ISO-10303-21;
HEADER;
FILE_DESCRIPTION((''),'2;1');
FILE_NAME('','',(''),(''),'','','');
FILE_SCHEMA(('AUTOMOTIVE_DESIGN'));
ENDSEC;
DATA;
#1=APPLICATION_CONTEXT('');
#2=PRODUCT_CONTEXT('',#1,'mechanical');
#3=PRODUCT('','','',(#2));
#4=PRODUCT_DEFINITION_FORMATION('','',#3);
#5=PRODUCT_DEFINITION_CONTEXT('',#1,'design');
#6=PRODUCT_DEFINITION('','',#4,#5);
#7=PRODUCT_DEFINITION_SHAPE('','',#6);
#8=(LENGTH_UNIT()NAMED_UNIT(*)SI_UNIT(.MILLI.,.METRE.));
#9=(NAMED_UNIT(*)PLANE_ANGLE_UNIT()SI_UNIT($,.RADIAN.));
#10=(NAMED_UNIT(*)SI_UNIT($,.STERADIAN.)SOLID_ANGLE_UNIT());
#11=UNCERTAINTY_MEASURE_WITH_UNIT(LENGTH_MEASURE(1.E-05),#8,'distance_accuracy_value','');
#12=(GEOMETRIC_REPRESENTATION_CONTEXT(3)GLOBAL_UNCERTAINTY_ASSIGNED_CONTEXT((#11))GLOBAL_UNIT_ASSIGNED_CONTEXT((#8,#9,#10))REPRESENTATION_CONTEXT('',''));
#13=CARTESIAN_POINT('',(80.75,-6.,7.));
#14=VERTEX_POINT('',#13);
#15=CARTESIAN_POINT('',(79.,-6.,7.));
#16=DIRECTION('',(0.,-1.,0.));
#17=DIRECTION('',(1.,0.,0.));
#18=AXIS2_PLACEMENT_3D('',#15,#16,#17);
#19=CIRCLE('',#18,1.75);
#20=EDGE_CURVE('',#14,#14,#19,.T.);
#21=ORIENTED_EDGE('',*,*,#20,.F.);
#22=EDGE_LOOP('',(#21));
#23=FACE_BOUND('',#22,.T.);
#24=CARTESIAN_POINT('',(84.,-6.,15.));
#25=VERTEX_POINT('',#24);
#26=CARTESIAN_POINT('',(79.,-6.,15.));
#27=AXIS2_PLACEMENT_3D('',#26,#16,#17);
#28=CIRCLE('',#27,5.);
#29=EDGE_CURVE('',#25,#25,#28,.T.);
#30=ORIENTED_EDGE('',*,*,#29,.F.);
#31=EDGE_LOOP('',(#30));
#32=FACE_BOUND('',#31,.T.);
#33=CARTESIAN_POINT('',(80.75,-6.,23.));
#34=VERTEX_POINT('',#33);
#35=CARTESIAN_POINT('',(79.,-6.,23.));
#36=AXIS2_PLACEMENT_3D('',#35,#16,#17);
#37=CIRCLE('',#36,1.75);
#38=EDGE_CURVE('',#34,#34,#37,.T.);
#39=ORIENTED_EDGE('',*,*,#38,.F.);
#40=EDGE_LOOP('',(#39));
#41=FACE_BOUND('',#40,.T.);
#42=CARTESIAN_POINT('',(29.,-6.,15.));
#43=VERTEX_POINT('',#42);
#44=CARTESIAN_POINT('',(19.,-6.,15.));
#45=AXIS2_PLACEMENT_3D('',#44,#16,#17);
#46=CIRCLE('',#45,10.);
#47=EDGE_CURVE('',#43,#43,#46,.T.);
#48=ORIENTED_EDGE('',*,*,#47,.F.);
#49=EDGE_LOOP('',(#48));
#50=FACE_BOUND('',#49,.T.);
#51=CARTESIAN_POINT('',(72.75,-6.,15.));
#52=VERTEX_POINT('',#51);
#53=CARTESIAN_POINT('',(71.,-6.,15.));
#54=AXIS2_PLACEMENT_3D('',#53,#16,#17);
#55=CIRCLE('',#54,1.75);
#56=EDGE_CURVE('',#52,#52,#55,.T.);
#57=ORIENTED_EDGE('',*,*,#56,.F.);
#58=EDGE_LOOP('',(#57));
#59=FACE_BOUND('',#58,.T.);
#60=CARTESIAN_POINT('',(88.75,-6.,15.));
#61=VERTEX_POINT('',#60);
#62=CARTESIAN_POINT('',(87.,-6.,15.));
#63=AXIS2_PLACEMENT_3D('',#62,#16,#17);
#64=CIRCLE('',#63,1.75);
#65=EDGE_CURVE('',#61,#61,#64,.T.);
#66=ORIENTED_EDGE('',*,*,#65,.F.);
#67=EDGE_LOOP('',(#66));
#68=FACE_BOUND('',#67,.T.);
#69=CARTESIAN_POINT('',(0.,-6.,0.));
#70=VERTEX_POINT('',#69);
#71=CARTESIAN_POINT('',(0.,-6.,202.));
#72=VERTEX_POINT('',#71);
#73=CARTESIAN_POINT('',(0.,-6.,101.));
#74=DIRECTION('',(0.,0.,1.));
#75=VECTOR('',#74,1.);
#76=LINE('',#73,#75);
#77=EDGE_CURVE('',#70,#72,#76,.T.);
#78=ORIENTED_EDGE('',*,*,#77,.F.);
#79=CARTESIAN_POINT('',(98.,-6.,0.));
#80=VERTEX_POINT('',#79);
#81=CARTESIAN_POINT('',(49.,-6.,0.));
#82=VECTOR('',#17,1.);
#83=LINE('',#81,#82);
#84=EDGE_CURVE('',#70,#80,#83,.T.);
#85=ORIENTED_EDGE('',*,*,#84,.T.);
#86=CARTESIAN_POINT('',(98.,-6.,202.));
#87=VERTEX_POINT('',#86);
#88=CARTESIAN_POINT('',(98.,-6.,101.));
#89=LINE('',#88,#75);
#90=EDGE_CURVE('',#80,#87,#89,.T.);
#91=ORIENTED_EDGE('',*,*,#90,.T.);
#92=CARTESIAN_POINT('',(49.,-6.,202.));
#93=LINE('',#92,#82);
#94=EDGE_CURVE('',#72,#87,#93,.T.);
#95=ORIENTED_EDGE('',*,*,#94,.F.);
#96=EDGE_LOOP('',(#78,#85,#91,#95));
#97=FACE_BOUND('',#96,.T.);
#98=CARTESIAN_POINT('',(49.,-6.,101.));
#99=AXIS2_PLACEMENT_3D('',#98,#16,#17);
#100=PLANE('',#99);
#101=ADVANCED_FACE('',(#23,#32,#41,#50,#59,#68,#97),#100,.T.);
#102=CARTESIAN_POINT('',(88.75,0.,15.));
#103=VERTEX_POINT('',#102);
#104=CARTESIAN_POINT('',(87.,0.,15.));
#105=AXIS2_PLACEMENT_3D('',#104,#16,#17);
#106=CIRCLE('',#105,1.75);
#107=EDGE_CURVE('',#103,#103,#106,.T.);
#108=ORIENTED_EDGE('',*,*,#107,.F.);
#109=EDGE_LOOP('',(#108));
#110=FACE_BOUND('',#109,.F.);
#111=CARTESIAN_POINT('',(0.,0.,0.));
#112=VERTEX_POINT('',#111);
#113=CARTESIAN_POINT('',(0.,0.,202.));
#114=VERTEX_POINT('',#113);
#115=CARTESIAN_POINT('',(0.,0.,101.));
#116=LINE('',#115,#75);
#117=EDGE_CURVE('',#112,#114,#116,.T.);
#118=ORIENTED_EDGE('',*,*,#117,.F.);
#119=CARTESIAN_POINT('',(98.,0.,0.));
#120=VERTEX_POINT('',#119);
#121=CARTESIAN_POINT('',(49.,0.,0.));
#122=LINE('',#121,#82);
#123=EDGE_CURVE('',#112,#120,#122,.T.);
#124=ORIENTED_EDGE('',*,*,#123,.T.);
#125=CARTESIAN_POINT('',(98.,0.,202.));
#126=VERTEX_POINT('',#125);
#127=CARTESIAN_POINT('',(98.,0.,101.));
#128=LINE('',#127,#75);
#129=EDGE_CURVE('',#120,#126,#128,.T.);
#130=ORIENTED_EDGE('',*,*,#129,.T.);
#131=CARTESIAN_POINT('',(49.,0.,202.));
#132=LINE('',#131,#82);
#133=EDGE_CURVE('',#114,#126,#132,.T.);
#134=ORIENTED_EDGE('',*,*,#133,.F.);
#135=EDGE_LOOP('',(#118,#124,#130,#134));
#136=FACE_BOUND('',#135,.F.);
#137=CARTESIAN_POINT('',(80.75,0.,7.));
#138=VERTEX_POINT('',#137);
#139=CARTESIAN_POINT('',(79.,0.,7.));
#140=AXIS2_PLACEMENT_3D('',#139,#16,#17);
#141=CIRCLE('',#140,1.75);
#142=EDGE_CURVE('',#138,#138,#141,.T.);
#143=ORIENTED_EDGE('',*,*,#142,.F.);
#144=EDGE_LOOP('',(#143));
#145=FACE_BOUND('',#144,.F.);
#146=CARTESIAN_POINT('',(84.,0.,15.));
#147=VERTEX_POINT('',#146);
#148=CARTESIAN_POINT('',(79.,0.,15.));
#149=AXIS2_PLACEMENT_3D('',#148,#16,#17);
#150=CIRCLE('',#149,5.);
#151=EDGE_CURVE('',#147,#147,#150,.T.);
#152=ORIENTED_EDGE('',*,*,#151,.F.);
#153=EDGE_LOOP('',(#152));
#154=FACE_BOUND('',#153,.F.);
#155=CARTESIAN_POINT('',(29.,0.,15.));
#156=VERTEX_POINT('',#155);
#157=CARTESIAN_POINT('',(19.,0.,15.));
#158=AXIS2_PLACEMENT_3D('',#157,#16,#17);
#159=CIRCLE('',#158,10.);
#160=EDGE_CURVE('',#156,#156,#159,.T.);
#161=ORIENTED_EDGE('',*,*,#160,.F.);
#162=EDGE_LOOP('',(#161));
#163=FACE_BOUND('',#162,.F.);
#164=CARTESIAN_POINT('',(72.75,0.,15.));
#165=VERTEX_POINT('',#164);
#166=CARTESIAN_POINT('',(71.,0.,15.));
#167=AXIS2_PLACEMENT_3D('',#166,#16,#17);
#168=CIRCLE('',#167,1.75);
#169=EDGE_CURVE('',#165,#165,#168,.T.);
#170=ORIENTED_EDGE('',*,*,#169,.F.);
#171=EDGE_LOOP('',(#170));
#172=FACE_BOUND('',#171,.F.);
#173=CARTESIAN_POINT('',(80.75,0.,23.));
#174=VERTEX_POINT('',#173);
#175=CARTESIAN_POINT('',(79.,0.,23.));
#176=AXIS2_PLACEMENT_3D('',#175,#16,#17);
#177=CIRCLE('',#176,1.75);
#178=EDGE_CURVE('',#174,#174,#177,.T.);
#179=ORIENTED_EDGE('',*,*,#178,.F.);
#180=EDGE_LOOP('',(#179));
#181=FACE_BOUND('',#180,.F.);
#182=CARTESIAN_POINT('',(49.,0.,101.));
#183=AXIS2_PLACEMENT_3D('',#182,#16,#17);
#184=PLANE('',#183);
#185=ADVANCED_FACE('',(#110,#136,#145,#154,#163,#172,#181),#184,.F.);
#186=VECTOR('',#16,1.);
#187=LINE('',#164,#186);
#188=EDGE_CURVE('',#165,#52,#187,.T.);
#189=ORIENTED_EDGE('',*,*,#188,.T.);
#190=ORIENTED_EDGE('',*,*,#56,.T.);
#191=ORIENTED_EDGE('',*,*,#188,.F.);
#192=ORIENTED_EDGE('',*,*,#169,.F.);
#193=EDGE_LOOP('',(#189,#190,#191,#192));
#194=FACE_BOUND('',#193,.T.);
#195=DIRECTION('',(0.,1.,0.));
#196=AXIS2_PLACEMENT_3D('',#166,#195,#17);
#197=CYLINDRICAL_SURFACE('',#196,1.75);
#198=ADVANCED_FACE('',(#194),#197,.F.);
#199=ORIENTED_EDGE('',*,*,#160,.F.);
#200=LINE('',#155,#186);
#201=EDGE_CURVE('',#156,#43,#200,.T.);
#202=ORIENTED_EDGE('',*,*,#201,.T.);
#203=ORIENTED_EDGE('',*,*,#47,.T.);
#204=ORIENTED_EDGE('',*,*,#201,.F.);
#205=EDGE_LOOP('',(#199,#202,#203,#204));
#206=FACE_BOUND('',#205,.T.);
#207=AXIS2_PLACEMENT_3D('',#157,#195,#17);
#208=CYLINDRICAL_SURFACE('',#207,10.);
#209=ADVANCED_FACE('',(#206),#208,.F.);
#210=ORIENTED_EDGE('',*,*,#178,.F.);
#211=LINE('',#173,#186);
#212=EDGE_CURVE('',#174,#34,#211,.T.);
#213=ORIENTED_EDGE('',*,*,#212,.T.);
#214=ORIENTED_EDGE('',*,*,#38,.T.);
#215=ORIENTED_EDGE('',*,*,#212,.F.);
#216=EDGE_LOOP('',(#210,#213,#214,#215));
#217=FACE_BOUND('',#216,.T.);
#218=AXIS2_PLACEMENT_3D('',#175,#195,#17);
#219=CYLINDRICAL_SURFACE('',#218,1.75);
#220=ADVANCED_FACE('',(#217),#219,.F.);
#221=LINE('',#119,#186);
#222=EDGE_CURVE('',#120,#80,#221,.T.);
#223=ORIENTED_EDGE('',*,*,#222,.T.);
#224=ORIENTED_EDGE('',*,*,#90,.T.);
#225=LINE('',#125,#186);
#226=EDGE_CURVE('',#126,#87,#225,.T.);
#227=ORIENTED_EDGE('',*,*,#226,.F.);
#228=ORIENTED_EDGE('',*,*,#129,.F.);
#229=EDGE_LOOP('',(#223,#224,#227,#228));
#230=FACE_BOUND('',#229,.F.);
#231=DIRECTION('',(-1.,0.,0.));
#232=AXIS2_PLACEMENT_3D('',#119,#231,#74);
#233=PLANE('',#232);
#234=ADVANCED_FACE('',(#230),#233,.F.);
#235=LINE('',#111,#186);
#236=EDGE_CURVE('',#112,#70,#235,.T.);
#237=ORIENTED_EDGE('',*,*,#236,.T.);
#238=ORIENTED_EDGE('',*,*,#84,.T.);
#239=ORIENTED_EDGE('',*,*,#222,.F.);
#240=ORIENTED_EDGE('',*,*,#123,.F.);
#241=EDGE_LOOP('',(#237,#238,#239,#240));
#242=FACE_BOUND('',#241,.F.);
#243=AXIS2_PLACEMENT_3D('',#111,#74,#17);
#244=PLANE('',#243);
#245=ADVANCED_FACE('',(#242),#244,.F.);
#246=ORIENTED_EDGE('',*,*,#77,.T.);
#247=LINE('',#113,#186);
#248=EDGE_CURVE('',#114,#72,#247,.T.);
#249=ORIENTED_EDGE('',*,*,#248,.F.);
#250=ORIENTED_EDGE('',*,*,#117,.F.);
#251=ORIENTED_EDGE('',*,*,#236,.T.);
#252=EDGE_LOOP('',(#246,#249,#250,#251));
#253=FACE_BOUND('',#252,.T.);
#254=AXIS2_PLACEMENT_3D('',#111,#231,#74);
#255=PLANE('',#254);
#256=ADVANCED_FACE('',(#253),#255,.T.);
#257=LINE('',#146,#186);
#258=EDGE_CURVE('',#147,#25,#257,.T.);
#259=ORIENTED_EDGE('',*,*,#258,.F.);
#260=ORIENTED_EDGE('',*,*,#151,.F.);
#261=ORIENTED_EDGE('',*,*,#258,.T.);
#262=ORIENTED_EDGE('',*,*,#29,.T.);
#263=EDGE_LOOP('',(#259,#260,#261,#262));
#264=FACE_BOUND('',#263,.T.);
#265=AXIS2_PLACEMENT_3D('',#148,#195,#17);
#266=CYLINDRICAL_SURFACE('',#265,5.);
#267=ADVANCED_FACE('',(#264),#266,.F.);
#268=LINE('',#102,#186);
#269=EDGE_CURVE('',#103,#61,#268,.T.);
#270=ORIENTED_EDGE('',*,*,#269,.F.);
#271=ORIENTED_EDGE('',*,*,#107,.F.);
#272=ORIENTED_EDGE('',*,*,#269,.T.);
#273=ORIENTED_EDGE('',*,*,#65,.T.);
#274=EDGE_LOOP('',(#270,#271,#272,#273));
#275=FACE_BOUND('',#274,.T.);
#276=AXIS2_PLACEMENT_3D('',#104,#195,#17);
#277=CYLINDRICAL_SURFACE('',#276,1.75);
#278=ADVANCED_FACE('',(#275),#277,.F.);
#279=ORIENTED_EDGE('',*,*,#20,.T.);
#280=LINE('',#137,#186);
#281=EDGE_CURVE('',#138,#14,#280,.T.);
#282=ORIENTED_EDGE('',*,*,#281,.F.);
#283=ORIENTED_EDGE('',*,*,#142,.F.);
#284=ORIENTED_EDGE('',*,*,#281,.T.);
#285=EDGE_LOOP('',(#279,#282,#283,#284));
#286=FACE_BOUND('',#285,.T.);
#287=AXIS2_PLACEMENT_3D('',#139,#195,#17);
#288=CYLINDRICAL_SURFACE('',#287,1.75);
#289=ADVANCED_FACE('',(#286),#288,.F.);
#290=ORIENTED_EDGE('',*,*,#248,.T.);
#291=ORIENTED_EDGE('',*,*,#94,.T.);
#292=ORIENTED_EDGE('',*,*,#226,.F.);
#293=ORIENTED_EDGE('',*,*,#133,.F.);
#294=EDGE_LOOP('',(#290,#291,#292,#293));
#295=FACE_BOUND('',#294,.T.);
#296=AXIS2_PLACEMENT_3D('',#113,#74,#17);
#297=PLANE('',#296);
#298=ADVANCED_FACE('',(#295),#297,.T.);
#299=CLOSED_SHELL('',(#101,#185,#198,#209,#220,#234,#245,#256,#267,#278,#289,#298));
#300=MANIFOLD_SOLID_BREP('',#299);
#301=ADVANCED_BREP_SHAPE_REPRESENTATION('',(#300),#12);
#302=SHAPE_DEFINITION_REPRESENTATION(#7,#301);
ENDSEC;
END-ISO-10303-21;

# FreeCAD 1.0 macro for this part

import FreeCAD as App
import Part
import Sketcher


def add_polygon(sketch, points):
    """Adds a closed chain of lines whose ends are joined by coincident constraints."""
    first, n = sketch.GeometryCount, len(points)
    for a, b in zip(points, points[1:] + points[:1]):
        sketch.addGeometry(Part.LineSegment(App.Vector(*a, 0), App.Vector(*b, 0)), False)
    for i in range(n):
        sketch.addConstraint(Sketcher.Constraint("Coincident", first + i, 2, first + (i + 1) % n, 1))

doc = App.newDocument("Part")
params = doc.addObject("Spreadsheet::Sheet", "Params")
for row, (alias, value) in enumerate([
    ("sketch1_diameter", "20 mm"),
    ("sketch1_diameter2", "10 mm"),
    ("sketch1_diameter3", "3.5 mm"),
    ("sketch1_width", "98 mm"),
    ("sketch1_height", "202 mm"),
    ("pad1_length", "6 mm"),
], start=1):
    params.set(f"A{row}", alias)
    params.set(f"B{row}", "=" + value)
    params.setAlias(f"B{row}", alias)

body = doc.addObject("PartDesign::Body", "Body")

# Sketch on XZ plane
sketch1 = body.newObject("Sketcher::SketchObject", "Sketch")
sketch1.AttachmentSupport = (doc.getObject("XZ_Plane"), [""])
sketch1.MapMode = "FlatFace"
add_polygon(sketch1, [(0, 202), (0, 0), (98, 0), (98, 202)])  # lines 0-3
sketch1.addGeometry(Part.Circle(App.Vector(79, 7, 0), App.Vector(0, 0, 1), 1.8), False)  # 4
sketch1.addGeometry(Part.Circle(App.Vector(19, 15, 0), App.Vector(0, 0, 1), 10), False)  # 5
sketch1.addGeometry(Part.Circle(App.Vector(71, 15, 0), App.Vector(0, 0, 1), 1.8), False)  # 6
sketch1.addGeometry(Part.Circle(App.Vector(79, 15, 0), App.Vector(0, 0, 1), 5), False)  # 7
sketch1.addGeometry(Part.Circle(App.Vector(87, 15, 0), App.Vector(0, 0, 1), 1.8), False)  # 8
sketch1.addGeometry(Part.Circle(App.Vector(79, 23, 0), App.Vector(0, 0, 1), 1.8), False)  # 9
sketch1.addConstraint(Sketcher.Constraint("Vertical", 0))
sketch1.addConstraint(Sketcher.Constraint("Horizontal", 1))
sketch1.addConstraint(Sketcher.Constraint("Vertical", 2))
sketch1.addConstraint(Sketcher.Constraint("Horizontal", 3))
sketch1.addConstraint(Sketcher.Constraint("Coincident", 0, 2, -1, 1))
sketch1.addConstraint(Sketcher.Constraint("Equal", 4, 6))
sketch1.addConstraint(Sketcher.Constraint("Equal", 6, 8))
sketch1.addConstraint(Sketcher.Constraint("Equal", 8, 9))
sketch1.addConstraint(Sketcher.Constraint("Horizontal", 5, 3, 6, 3))
sketch1.addConstraint(Sketcher.Constraint("Horizontal", 6, 3, 7, 3))
sketch1.addConstraint(Sketcher.Constraint("Horizontal", 7, 3, 8, 3))
sketch1.addConstraint(Sketcher.Constraint("Vertical", 4, 3, 7, 3))
sketch1.addConstraint(Sketcher.Constraint("Vertical", 7, 3, 9, 3))
sketch1.addConstraint(Sketcher.Constraint("Diameter", 5, 20.0))
sketch1.addConstraint(Sketcher.Constraint("Diameter", 7, 10.0))
sketch1.addConstraint(Sketcher.Constraint("Diameter", 4, 3.5))
sketch1.addConstraint(Sketcher.Constraint("DistanceX", 1, 1, 1, 2, 98.0))
sketch1.addConstraint(Sketcher.Constraint("DistanceY", 0, 2, 0, 1, 202.0))
sketch1.addConstraint(Sketcher.Constraint("DistanceX", -1, 1, 4, 3, 79.0))
sketch1.addConstraint(Sketcher.Constraint("DistanceY", -1, 1, 4, 3, 7.0))
sketch1.addConstraint(Sketcher.Constraint("DistanceX", -1, 1, 5, 3, 19.0))
sketch1.addConstraint(Sketcher.Constraint("DistanceY", -1, 1, 5, 3, 15.0))
sketch1.addConstraint(Sketcher.Constraint("DistanceX", -1, 1, 6, 3, 71.0))
sketch1.addConstraint(Sketcher.Constraint("DistanceX", -1, 1, 8, 3, 87.0))
sketch1.addConstraint(Sketcher.Constraint("DistanceY", -1, 1, 9, 3, 23.0))
sketch1.setExpression("Constraints[17]", "Params.sketch1_diameter")
sketch1.setExpression("Constraints[18]", "Params.sketch1_diameter2")
sketch1.setExpression("Constraints[19]", "Params.sketch1_diameter3")
sketch1.setExpression("Constraints[20]", "Params.sketch1_width")
sketch1.setExpression("Constraints[21]", "Params.sketch1_height")
pad1 = body.newObject("PartDesign::Pad", "Pad")
pad1.Profile = sketch1
pad1.setExpression("Length", "Params.pad1_length")

doc.recompute()
